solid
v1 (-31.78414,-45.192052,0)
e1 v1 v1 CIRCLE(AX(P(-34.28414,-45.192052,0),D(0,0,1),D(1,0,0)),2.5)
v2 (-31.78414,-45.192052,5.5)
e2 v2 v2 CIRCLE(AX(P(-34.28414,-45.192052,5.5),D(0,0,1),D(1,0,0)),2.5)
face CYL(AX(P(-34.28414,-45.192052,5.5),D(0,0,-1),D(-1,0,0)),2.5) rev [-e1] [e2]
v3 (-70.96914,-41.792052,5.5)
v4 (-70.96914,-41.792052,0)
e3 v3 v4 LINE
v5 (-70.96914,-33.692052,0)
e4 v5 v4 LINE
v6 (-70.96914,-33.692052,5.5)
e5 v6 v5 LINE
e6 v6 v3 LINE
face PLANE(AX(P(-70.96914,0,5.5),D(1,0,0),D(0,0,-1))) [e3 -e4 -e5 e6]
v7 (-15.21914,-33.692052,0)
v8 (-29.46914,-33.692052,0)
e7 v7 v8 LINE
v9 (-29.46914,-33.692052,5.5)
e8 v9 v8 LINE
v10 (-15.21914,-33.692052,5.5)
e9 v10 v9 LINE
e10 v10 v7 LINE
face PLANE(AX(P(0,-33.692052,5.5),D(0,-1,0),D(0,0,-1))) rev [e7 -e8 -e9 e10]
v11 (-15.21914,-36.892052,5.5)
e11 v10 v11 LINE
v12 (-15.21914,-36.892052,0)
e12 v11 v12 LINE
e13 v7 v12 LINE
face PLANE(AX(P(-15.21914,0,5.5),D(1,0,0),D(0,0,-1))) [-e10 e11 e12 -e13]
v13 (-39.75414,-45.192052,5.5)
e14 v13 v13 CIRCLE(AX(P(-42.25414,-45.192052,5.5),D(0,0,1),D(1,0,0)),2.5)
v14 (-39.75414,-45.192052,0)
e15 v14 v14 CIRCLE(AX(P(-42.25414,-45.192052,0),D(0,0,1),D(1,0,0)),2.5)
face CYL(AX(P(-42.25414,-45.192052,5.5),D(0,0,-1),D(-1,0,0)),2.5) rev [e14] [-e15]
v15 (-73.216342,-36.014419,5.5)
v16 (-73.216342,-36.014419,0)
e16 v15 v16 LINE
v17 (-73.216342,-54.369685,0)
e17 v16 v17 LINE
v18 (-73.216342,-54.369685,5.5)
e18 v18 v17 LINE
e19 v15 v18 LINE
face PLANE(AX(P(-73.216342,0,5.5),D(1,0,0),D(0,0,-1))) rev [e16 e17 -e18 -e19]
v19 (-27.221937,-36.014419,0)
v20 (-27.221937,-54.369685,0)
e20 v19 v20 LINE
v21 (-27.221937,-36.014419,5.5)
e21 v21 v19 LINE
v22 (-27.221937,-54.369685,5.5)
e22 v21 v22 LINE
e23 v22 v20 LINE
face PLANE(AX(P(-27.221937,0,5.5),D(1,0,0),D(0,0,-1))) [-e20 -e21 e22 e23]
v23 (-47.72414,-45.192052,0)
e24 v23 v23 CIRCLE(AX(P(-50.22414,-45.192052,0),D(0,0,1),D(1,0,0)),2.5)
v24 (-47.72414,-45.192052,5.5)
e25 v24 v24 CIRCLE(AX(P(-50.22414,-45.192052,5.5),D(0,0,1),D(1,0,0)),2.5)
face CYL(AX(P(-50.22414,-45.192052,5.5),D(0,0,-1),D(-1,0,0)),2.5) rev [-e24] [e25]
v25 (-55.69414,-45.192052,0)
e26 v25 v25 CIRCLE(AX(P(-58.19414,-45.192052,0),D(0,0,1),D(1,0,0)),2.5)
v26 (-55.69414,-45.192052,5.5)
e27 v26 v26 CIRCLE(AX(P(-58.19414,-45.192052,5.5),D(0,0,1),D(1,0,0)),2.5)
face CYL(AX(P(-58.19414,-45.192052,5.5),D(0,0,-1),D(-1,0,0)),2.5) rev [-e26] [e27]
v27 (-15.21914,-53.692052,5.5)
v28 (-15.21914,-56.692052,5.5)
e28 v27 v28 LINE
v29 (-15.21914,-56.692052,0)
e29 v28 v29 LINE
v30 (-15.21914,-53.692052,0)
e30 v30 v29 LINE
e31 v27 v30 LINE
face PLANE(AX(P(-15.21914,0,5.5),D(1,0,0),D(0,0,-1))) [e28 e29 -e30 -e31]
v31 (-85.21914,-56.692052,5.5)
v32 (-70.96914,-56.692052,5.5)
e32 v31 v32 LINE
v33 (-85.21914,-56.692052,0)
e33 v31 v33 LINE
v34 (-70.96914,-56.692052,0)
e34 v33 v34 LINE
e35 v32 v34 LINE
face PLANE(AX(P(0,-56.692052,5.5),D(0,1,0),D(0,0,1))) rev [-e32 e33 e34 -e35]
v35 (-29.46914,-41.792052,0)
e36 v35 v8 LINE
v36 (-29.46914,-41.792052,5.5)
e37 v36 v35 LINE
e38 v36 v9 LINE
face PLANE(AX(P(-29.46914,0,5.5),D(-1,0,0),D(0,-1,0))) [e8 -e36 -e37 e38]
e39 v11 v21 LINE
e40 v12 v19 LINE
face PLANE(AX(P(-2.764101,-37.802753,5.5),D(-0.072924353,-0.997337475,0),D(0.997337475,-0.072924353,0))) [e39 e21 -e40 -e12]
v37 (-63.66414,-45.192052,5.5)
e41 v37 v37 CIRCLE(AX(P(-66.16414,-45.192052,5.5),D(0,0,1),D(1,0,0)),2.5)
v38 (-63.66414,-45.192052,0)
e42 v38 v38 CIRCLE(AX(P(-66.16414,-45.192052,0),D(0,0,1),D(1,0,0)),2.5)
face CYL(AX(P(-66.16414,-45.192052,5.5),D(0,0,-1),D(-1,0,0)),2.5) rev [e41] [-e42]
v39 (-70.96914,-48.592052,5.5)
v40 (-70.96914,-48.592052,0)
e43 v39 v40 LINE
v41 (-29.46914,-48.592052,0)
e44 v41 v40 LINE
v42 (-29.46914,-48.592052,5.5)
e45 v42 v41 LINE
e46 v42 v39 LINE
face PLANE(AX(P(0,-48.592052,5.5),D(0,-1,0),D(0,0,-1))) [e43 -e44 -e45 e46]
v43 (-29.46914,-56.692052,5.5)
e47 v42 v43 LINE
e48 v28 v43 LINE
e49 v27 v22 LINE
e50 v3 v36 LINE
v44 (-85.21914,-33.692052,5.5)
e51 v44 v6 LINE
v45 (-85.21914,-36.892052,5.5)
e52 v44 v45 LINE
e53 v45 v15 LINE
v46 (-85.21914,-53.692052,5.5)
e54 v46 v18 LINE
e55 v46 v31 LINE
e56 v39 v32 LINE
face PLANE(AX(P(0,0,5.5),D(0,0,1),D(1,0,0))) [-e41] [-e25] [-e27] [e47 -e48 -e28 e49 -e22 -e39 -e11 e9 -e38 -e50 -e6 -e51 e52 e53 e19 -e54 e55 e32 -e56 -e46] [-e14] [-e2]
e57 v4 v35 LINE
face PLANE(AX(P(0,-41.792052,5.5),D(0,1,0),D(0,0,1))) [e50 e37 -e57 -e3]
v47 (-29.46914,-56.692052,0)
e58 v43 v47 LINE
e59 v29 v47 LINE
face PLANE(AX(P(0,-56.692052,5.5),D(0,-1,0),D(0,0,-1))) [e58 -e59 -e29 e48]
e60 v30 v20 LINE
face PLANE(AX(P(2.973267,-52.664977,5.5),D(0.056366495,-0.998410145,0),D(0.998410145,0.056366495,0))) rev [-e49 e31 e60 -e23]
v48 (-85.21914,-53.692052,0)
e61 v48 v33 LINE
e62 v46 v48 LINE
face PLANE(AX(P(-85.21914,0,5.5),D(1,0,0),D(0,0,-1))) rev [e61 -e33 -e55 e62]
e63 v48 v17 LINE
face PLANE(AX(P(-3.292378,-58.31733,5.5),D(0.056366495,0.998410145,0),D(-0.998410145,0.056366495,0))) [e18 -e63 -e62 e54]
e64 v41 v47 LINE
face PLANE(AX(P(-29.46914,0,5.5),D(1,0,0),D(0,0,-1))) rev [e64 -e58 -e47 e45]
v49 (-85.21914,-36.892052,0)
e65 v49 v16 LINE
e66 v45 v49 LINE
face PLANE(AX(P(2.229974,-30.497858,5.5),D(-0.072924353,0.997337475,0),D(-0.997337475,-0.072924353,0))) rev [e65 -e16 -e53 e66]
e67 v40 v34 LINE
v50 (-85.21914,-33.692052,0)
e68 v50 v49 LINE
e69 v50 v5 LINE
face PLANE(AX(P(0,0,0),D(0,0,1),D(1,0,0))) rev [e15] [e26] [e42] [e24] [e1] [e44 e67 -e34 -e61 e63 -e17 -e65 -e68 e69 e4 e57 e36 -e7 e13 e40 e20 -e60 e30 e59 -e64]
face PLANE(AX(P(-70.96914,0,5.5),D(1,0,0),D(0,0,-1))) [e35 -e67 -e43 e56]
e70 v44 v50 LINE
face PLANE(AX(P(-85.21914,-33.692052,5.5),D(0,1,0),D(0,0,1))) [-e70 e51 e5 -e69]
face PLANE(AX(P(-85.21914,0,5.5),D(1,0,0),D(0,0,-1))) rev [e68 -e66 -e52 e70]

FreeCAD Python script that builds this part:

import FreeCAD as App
import Part
import Sketcher
from FreeCAD import Vector


def add_polygon(sketch, points):
    """Adds a closed chain of lines whose ends are joined by coincident constraints."""
    first, n = sketch.GeometryCount, len(points)
    for a, b in zip(points, points[1:] + points[:1]):
        sketch.addGeometry(Part.LineSegment(App.Vector(*a, 0), App.Vector(*b, 0)), False)
    for i in range(n):
        sketch.addConstraint(Sketcher.Constraint("Coincident", first + i, 2, first + (i + 1) % n, 1))

doc = App.newDocument("Part")
params = doc.addObject("Spreadsheet::Sheet", "Params")
for row, (alias, value) in enumerate([
    ("sketch1_diameter", "5 mm"),
    ("sketch1_height", "3 mm"),
    ("sketch1_width", "41.5 mm"),
    ("sketch1_height2", "8.1 mm"),
    ("sketch1_height3", "3.2 mm"),
    ("pad1_length", "5.5 mm"),
], start=1):
    params.set(f"A{row}", alias)
    params.set(f"B{row}", "=" + value)
    params.setAlias(f"B{row}", alias)

body = doc.addObject("PartDesign::Body", "Body")

sketch1 = body.newObject("Sketcher::SketchObject", "Sketch")
sketch1.AttachmentSupport = (doc.getObject("XY_Plane"), [""])
sketch1.MapMode = "FlatFace"
add_polygon(sketch1, [(-70.96914, -41.792052), (-70.96914, -33.692052), (-85.21914, -33.692052), (-85.21914, -36.892052), (-73.216342, -36.014419), (-73.216342, -54.369685), (-85.21914, -53.692052), (-85.21914, -56.692052), (-70.96914, -56.692052), (-70.96914, -48.592052), (-29.46914, -48.592052), (-29.46914, -56.692052), (-15.21914, -56.692052), (-15.21914, -53.692052), (-27.221937, -54.369685), (-27.221937, -36.014419), (-15.21914, -36.892052), (-15.21914, -33.692052), (-29.46914, -33.692052), (-29.46914, -41.792052)])
sketch1.addGeometry(Part.Circle(Vector(-66.16414, -45.192052, 0), Vector(0, 0, 1), 2.5), False)
sketch1.addGeometry(Part.Circle(Vector(-58.19414, -45.192052, 0), Vector(0, 0, 1), 2.5), False)
sketch1.addGeometry(Part.Circle(Vector(-50.22414, -45.192052, 0), Vector(0, 0, 1), 2.5), False)
sketch1.addGeometry(Part.Circle(Vector(-42.25414, -45.192052, 0), Vector(0, 0, 1), 2.5), False)
sketch1.addGeometry(Part.Circle(Vector(-34.28414, -45.192052, 0), Vector(0, 0, 1), 2.5), False)
sketch1.addConstraint([
    Sketcher.Constraint("Vertical", 0),
    Sketcher.Constraint("Horizontal", 1),
    Sketcher.Constraint("Vertical", 2),
    Sketcher.Constraint("Vertical", 4),
    Sketcher.Constraint("Vertical", 6),
    Sketcher.Constraint("Horizontal", 7),
    Sketcher.Constraint("Vertical", 8),
    Sketcher.Constraint("Horizontal", 9),
    Sketcher.Constraint("Vertical", 10),
    Sketcher.Constraint("Horizontal", 11),
    Sketcher.Constraint("Vertical", 12),
    Sketcher.Constraint("Vertical", 14),
    Sketcher.Constraint("Vertical", 16),
    Sketcher.Constraint("Horizontal", 17),
    Sketcher.Constraint("Vertical", 18),
    Sketcher.Constraint("Horizontal", 19),
    Sketcher.Constraint("Equal", 20, 21),
    Sketcher.Constraint("Equal", 21, 22),
    Sketcher.Constraint("Equal", 22, 23),
    Sketcher.Constraint("Equal", 23, 24),
    Sketcher.Constraint("Horizontal", 20, 3, 21, 3),
    Sketcher.Constraint("Horizontal", 21, 3, 22, 3),
    Sketcher.Constraint("Horizontal", 22, 3, 23, 3),
    Sketcher.Constraint("Horizontal", 23, 3, 24, 3),
    Sketcher.Constraint("Horizontal", 7, 2, 10, 2),
    Sketcher.Constraint("Horizontal", 5, 2, 12, 2),
    Sketcher.Constraint("Horizontal", 4, 2, 13, 2),
    Sketcher.Constraint("Horizontal", 3, 2, 14, 2),
    Sketcher.Constraint("Horizontal", 2, 2, 15, 2),
    Sketcher.Constraint("Horizontal", 1, 2, 16, 2),
    Sketcher.Constraint("Vertical", 2, 2, 5, 2),
    Sketcher.Constraint("Vertical", 0, 2, 7, 2),
    Sketcher.Constraint("Vertical", 12, 2, 15, 2),
    Sketcher.Constraint("Vertical", 10, 2, 17, 2),
    Sketcher.Constraint("Equal", 7, 11),
    Sketcher.Constraint("Equal", 0, 8),
    Sketcher.Constraint("Equal", 5, 13),
    Sketcher.Constraint("Diameter", 20, 5.0),
    Sketcher.Constraint("DistanceY", 6, 2, 6, 1, 3.0),
    Sketcher.Constraint("DistanceX", 9, 1, 9, 2, 41.5),
    Sketcher.Constraint("DistanceY", 0, 1, 0, 2, 8.1),
    Sketcher.Constraint("DistanceY", 2, 2, 2, 1, 3.2),
    Sketcher.Constraint("DistanceY", 5, 2, 1, 2, 20.0),
    Sketcher.Constraint("DistanceX", 1, 2, 1, 1, 14.25),
    Sketcher.Constraint("DistanceY", 20, 3, 0, 2, 11.5),
    Sketcher.Constraint("DistanceX", 20, 3, 21, 3, 7.97),
    Sketcher.Constraint("DistanceX", 21, 3, 22, 3, 7.97),
    Sketcher.Constraint("DistanceX", 22, 3, 23, 3, 7.97),
    Sketcher.Constraint("DistanceX", 23, 3, 24, 3, 7.97),
    Sketcher.Constraint("DistanceX", 0, 2, 20, 3, 4.805),
    Sketcher.Constraint("Distance", 3, 12.034841),
    Sketcher.Constraint("Distance", 5, 12.021911),
    Sketcher.Constraint("DistanceY", 4, 2, 4, 1, 18.355266),
    Sketcher.Constraint("DistanceX", 20, 3, -1, 1, 66.16414),
    Sketcher.Constraint("DistanceY", 3, 2, -1, 1, 36.014419),
])
sketch1.setExpression("Constraints[57]", "Params.sketch1_diameter")
sketch1.setExpression("Constraints[58]", "Params.sketch1_height")
sketch1.setExpression("Constraints[59]", "Params.sketch1_width")
sketch1.setExpression("Constraints[60]", "Params.sketch1_height2")
sketch1.setExpression("Constraints[61]", "Params.sketch1_height3")
pad1 = body.newObject("PartDesign::Pad", "Pad")
pad1.Profile = sketch1
pad1.setExpression("Length", "Params.pad1_length")

doc.recompute()
